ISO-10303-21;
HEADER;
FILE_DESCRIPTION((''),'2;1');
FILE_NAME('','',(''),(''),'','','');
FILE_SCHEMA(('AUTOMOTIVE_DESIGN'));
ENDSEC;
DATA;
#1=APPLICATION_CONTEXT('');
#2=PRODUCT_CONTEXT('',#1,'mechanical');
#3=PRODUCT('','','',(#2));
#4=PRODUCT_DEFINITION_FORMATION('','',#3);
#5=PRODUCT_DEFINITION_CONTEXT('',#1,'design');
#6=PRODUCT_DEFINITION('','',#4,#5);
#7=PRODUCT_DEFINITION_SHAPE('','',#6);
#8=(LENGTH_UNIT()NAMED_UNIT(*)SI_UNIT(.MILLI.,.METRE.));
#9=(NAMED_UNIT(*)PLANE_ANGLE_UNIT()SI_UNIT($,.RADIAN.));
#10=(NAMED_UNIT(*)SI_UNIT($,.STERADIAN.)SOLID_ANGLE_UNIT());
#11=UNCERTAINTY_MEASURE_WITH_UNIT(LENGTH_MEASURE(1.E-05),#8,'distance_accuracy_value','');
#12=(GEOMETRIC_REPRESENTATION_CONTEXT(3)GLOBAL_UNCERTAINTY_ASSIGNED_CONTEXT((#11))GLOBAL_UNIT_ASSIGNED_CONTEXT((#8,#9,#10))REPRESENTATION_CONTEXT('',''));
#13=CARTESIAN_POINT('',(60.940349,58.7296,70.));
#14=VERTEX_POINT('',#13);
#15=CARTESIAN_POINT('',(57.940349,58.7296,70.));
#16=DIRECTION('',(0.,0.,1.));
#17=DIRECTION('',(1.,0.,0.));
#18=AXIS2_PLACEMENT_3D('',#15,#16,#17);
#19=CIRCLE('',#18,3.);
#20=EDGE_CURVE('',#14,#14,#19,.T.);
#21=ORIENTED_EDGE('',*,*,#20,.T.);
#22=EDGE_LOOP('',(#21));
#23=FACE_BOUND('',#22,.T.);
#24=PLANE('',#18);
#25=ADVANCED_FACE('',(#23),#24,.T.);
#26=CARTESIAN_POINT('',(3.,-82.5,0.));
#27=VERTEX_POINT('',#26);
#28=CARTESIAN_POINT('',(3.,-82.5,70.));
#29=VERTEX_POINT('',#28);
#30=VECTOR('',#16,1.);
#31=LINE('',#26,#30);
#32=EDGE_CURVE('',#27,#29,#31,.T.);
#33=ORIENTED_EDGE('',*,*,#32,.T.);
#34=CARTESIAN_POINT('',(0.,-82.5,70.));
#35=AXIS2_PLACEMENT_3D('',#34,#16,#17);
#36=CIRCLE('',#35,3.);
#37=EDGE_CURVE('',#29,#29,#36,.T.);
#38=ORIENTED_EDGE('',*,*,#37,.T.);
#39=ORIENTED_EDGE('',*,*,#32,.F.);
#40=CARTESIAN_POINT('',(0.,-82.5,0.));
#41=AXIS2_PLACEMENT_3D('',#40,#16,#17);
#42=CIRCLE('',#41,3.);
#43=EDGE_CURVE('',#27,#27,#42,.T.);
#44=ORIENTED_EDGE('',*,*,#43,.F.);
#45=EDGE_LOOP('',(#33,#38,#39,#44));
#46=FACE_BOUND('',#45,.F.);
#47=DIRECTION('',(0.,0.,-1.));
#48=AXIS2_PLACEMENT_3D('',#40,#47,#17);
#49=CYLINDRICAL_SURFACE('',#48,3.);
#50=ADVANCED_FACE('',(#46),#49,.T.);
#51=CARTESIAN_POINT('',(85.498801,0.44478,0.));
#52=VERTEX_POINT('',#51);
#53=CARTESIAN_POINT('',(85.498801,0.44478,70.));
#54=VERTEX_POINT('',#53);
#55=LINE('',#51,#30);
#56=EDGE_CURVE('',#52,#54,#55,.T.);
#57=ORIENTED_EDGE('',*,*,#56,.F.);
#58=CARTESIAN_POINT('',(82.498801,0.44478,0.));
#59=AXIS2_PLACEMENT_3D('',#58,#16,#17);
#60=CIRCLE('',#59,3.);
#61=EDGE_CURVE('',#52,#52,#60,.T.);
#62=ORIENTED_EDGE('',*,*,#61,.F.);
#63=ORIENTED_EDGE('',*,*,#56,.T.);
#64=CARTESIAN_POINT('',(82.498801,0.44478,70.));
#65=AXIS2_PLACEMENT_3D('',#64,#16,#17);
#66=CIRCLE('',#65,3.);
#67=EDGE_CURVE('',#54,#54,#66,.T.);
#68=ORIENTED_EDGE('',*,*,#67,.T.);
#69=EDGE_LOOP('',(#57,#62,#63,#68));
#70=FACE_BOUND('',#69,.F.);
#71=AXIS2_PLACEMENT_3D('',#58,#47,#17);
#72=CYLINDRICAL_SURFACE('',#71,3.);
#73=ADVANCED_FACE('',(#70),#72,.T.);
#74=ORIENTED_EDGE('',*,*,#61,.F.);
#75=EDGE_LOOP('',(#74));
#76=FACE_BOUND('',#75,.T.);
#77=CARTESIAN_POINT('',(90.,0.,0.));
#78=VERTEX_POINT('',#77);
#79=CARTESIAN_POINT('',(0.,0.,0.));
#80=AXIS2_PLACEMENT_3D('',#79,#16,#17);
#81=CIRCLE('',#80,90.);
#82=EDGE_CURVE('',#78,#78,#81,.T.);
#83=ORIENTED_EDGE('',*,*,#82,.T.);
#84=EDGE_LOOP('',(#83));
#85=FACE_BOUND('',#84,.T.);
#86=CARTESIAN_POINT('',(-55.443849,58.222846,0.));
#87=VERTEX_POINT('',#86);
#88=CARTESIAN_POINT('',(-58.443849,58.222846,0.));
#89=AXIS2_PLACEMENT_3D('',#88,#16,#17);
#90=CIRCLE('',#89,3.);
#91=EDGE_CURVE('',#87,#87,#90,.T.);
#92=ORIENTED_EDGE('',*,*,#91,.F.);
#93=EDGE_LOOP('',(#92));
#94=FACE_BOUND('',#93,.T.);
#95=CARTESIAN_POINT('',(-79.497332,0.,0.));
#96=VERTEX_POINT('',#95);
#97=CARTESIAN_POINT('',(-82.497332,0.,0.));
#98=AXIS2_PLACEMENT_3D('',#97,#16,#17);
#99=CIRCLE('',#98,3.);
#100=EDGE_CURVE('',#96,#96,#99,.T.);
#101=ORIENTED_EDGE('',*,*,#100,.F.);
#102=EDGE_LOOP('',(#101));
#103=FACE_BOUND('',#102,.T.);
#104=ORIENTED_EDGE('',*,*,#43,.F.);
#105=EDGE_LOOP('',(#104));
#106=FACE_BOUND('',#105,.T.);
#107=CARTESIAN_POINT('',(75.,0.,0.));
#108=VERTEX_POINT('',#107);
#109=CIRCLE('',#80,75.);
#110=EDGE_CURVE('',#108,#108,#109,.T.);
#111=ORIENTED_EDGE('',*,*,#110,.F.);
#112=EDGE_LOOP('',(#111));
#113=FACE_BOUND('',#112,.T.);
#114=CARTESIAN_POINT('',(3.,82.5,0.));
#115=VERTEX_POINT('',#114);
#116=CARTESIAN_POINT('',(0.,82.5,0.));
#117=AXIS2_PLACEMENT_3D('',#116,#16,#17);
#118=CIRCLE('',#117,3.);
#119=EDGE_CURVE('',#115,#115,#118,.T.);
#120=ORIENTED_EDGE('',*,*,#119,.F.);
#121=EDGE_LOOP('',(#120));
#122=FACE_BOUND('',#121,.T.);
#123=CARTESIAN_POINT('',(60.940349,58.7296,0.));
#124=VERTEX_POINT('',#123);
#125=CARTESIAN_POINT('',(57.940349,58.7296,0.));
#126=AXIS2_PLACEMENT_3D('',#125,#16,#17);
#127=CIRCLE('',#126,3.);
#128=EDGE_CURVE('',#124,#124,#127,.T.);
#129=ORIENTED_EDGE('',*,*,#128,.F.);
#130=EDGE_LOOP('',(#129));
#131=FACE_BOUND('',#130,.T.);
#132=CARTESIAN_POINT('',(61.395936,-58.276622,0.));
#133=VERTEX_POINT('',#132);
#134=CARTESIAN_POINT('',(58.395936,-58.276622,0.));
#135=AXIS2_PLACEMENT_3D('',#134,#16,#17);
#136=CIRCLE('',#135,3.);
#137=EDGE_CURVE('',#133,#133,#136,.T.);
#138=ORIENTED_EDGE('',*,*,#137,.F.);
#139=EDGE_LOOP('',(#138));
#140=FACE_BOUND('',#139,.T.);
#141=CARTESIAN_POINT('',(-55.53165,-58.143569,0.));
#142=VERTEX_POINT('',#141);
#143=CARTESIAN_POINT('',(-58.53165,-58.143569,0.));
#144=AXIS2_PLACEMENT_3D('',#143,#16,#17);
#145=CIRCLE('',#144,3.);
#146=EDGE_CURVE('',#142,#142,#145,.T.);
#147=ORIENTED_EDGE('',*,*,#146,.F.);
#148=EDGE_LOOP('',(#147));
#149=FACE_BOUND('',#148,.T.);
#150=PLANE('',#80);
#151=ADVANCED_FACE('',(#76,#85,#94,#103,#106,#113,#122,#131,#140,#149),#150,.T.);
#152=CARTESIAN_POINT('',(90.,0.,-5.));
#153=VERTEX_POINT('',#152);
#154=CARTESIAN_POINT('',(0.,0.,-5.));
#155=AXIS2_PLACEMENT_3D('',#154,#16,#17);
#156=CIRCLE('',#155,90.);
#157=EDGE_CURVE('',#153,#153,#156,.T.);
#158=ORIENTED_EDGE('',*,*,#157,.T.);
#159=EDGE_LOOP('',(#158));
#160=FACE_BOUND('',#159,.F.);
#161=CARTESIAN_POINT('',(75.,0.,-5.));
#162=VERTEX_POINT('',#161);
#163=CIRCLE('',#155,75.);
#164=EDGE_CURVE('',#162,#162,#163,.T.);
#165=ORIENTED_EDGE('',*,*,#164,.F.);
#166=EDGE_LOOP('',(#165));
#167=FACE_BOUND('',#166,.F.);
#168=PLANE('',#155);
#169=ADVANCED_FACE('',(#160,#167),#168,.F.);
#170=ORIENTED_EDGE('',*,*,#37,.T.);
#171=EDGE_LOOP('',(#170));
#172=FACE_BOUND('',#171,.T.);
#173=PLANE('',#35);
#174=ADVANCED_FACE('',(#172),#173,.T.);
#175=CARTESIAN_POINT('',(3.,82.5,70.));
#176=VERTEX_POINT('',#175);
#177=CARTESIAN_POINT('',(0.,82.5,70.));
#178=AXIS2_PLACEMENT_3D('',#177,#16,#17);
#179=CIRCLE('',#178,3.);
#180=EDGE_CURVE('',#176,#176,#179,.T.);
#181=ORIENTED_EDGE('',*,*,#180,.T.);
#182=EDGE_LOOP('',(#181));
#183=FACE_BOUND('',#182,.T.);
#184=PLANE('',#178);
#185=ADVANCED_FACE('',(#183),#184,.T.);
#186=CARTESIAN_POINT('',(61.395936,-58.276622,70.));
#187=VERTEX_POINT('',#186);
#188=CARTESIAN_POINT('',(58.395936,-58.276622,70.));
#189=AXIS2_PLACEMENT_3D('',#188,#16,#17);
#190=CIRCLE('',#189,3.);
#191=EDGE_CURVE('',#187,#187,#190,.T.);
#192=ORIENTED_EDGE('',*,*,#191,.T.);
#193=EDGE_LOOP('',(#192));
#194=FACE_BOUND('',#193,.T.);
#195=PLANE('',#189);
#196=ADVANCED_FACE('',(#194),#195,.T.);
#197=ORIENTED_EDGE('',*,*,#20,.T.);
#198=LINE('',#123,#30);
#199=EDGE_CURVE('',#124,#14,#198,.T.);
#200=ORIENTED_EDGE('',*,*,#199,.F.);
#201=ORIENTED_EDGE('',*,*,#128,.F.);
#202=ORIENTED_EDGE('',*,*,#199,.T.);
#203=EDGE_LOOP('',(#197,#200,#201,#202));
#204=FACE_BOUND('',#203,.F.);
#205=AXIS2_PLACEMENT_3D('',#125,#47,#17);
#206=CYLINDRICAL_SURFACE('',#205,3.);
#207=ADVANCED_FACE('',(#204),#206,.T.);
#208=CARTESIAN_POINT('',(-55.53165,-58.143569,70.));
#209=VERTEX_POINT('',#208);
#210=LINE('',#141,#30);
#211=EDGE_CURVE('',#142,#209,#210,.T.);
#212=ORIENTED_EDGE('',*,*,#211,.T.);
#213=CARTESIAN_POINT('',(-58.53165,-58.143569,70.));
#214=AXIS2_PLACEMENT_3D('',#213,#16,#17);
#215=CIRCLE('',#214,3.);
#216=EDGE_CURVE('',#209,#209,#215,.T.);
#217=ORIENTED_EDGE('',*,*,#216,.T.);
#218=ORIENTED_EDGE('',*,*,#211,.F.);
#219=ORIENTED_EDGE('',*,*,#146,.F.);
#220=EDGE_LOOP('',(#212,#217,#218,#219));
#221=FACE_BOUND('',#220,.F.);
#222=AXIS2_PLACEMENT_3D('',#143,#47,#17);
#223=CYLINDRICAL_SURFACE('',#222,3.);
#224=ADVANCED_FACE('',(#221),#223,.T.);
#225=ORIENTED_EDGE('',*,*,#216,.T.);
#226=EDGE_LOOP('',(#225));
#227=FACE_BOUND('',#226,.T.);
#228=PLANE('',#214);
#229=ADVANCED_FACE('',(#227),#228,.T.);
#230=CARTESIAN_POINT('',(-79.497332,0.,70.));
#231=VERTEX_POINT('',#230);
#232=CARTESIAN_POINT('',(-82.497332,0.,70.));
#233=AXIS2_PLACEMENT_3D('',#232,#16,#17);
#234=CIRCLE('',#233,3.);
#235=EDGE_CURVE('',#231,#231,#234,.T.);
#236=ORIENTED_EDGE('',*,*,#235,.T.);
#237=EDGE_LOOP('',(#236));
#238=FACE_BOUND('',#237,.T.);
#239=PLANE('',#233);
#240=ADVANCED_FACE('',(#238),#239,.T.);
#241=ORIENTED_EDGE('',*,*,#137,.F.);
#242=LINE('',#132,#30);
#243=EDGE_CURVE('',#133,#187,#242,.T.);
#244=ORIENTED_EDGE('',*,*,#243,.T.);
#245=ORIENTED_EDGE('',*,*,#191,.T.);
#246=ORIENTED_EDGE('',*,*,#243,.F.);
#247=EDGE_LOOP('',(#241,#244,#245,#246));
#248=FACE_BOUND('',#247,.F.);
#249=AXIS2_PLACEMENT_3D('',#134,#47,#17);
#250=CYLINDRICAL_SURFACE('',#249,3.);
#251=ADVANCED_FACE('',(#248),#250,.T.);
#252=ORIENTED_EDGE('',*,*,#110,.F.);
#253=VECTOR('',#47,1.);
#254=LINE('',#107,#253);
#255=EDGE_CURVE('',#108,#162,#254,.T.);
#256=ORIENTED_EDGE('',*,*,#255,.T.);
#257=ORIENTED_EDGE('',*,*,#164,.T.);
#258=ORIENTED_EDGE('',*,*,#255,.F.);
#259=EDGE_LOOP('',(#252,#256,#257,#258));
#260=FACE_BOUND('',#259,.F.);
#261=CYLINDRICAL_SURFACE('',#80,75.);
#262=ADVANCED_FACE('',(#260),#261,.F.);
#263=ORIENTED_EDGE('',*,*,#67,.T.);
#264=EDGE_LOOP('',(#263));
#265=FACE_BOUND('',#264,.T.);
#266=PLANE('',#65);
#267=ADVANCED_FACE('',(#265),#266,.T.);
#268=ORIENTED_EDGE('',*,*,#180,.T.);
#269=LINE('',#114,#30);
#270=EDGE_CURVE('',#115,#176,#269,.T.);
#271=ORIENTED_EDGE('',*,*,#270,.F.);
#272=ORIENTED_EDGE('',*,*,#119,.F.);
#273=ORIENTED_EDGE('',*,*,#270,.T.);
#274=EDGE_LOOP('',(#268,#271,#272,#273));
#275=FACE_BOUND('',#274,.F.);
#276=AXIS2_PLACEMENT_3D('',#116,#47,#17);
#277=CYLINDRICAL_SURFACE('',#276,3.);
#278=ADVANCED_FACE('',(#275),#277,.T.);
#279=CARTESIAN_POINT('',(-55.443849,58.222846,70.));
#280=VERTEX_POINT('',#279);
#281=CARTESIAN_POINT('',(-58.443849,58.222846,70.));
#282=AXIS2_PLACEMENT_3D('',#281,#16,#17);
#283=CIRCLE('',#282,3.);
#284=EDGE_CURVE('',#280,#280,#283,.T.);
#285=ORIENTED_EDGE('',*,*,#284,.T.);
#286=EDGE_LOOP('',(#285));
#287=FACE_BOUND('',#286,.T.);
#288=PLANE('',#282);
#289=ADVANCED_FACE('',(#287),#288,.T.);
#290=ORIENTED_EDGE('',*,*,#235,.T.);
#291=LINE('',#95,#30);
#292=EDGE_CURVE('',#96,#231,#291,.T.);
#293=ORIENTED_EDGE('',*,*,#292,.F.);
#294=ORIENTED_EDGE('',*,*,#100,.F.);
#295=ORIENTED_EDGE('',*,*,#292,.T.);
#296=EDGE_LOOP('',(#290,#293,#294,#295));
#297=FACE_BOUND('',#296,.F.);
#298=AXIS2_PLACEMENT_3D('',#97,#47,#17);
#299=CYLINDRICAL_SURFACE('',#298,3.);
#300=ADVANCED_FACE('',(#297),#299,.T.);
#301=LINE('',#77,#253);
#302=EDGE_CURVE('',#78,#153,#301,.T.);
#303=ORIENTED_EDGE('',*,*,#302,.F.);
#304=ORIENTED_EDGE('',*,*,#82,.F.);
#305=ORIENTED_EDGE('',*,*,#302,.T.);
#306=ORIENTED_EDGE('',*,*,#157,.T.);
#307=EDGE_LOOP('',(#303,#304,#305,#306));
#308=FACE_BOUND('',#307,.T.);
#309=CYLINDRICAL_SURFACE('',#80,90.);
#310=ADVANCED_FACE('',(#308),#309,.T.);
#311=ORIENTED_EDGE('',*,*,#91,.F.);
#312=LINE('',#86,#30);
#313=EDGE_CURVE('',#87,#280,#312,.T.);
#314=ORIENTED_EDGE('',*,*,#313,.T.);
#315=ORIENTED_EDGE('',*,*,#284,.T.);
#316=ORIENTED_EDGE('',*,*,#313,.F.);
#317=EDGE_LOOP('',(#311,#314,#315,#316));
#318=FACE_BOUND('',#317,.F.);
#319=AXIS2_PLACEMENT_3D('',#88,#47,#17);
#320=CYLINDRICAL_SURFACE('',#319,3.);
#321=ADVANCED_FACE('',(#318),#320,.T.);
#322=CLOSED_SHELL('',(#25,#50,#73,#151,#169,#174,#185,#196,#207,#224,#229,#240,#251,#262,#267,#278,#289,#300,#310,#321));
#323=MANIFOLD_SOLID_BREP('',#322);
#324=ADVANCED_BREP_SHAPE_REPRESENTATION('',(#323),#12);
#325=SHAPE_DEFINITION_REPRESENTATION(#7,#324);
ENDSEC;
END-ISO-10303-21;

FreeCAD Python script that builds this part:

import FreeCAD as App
import Part
import Sketcher

V = App.Vector
Q = App.Units.Quantity

doc = App.newDocument("Part")
body = doc.addObject("PartDesign::Body", "Body")

# Sketch on XY plane
sketch1 = doc.addObject("Sketcher::SketchObject", "Sketch")
body.addObject(sketch1)
sketch1.AttachmentSupport = (doc.XY_Plane, [""])
sketch1.MapMode = "FlatFace"
sketch1.addGeometry(Part.Circle(V(0, 0, 0), V(0, 0, 1), 90), False)
sketch1.addGeometry(Part.Circle(V(0, 0, 0), V(0, 0, 1), 75), False)
sketch1.addConstraint(Sketcher.Constraint("Coincident", 0, 3, -1, 1))
sketch1.addConstraint(Sketcher.Constraint("Coincident", 1, 3, -1, 1))
sketch1.addConstraint(Sketcher.Constraint("Diameter", 0, Q("180 mm")))
sketch1.addConstraint(Sketcher.Constraint("Diameter", 1, Q("150 mm")))
pad1 = doc.addObject("PartDesign::Pad", "Pad")
body.addObject(pad1)
pad1.Profile = sketch1
pad1.Length = 5
pad1.Reversed = True

# Sketch on XY plane
sketch2 = doc.addObject("Sketcher::SketchObject", "Sketch001")
body.addObject(sketch2)
sketch2.AttachmentSupport = (doc.XY_Plane, [""])
sketch2.MapMode = "FlatFace"
sketch2.addGeometry(Part.Circle(V(0, 82.5, 0), V(0, 0, 1), 3), False)
sketch2.addGeometry(Part.Circle(V(57.9, 58.7, 0), V(0, 0, 1), 3), False)
sketch2.addGeometry(Part.Circle(V(82.5, 0.4, 0), V(0, 0, 1), 3), False)
sketch2.addGeometry(Part.Circle(V(58.4, -58.3, 0), V(0, 0, 1), 3), False)
sketch2.addGeometry(Part.Circle(V(0, -82.5, 0), V(0, 0, 1), 3), False)
sketch2.addGeometry(Part.Circle(V(-58.4, 58.2, 0), V(0, 0, 1), 3), False)
sketch2.addGeometry(Part.Circle(V(-82.5, 0, 0), V(0, 0, 1), 3), False)
sketch2.addGeometry(Part.Circle(V(-58.5, -58.1, 0), V(0, 0, 1), 3), False)
sketch2.addConstraint(Sketcher.Constraint("Equal", 0, 1))
sketch2.addConstraint(Sketcher.Constraint("Equal", 1, 2))
sketch2.addConstraint(Sketcher.Constraint("Equal", 2, 3))
sketch2.addConstraint(Sketcher.Constraint("Equal", 3, 4))
sketch2.addConstraint(Sketcher.Constraint("Equal", 4, 5))
sketch2.addConstraint(Sketcher.Constraint("Equal", 5, 6))
sketch2.addConstraint(Sketcher.Constraint("Equal", 6, 7))
sketch2.addConstraint(Sketcher.Constraint("Symmetric", 0, 3, 4, 3, -1, 1))
sketch2.addConstraint(Sketcher.Constraint("PointOnObject", 0, 3, -2))
sketch2.addConstraint(Sketcher.Constraint("PointOnObject", 6, 3, -1))
sketch2.addConstraint(Sketcher.Constraint("Diameter", 0, Q("6 mm")))
sketch2.addConstraint(Sketcher.Constraint("DistanceY", 4, 3, 0, 3, Q("165 mm")))
sketch2.addConstraint(Sketcher.Constraint("DistanceY", -1, 1, 1, 3, Q("58.7296 mm")))
sketch2.addConstraint(Sketcher.Constraint("DistanceX", -1, 1, 2, 3, Q("82.498801 mm")))
sketch2.addConstraint(Sketcher.Constraint("DistanceX", 7, 3, 5, 3, Q("0.087801 mm")))
sketch2.addConstraint(Sketcher.Constraint("DistanceX", -1, 1, 1, 3, Q("57.940349 mm")))
sketch2.addConstraint(Sketcher.Constraint("DistanceY", -1, 1, 2, 3, Q("0.44478 mm")))
sketch2.addConstraint(Sketcher.Constraint("DistanceX", 5, 3, -1, 1, Q("58.443849 mm")))
sketch2.addConstraint(Sketcher.Constraint("DistanceX", 6, 3, -1, 1, Q("82.497332 mm")))
sketch2.addConstraint(Sketcher.Constraint("DistanceY", 7, 3, -1, 1, Q("58.143569 mm")))
sketch2.addConstraint(Sketcher.Constraint("DistanceY", 3, 3, 0, 3, Q("140.776622 mm")))
sketch2.addConstraint(Sketcher.Constraint("DistanceY", 3, 3, 5, 3, Q("116.499468 mm")))
sketch2.addConstraint(Sketcher.Constraint("DistanceX", 6, 3, 3, 3, Q("140.893268 mm")))
pad2 = doc.addObject("PartDesign::Pad", "Pad001")
body.addObject(pad2)
pad2.Profile = sketch2
pad2.Length = 70

doc.recompute()
